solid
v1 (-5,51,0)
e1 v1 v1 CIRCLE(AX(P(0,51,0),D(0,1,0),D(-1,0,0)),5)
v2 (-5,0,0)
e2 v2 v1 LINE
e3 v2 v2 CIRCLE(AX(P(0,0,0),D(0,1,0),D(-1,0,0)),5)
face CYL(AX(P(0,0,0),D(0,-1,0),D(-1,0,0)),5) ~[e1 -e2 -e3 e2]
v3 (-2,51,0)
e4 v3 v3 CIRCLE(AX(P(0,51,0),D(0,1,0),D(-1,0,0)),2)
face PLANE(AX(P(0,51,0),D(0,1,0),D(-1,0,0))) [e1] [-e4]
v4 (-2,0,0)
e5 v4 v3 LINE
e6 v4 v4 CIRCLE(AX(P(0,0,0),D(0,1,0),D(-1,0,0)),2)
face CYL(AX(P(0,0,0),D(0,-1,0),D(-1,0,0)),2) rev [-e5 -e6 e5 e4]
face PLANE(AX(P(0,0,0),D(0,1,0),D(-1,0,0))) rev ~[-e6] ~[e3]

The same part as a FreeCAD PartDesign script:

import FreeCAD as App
import Part
import Sketcher
Q = App.Units.Quantity

doc = App.newDocument("Part")
body = doc.addObject("PartDesign::Body", "Body")

# Sketch on XZ plane
sketch1 = doc.addObject("Sketcher::SketchObject", "Sketch")
body.addObject(sketch1)
sketch1.AttachmentSupport = (doc.XZ_Plane, [""])
sketch1.MapMode = "FlatFace"
sketch1.addGeometry(Part.Circle(App.Vector(0, 0, 0), App.Vector(0, 0, 1), 5), False)
sketch1.addGeometry(Part.Circle(App.Vector(0, 0, 0), App.Vector(0, 0, 1), 2), False)
sketch1.addConstraint(Sketcher.Constraint("Coincident", 0, 3, -1, 1))
sketch1.addConstraint(Sketcher.Constraint("Coincident", 1, 3, -1, 1))
sketch1.addConstraint(Sketcher.Constraint("Diameter", 0, Q("10 mm")))
sketch1.addConstraint(Sketcher.Constraint("Diameter", 1, Q("4 mm")))
pad1 = doc.addObject("PartDesign::Pad", "Pad")
body.addObject(pad1)
pad1.Profile = sketch1
pad1.Length = 51
pad1.Reversed = True

doc.recompute()
